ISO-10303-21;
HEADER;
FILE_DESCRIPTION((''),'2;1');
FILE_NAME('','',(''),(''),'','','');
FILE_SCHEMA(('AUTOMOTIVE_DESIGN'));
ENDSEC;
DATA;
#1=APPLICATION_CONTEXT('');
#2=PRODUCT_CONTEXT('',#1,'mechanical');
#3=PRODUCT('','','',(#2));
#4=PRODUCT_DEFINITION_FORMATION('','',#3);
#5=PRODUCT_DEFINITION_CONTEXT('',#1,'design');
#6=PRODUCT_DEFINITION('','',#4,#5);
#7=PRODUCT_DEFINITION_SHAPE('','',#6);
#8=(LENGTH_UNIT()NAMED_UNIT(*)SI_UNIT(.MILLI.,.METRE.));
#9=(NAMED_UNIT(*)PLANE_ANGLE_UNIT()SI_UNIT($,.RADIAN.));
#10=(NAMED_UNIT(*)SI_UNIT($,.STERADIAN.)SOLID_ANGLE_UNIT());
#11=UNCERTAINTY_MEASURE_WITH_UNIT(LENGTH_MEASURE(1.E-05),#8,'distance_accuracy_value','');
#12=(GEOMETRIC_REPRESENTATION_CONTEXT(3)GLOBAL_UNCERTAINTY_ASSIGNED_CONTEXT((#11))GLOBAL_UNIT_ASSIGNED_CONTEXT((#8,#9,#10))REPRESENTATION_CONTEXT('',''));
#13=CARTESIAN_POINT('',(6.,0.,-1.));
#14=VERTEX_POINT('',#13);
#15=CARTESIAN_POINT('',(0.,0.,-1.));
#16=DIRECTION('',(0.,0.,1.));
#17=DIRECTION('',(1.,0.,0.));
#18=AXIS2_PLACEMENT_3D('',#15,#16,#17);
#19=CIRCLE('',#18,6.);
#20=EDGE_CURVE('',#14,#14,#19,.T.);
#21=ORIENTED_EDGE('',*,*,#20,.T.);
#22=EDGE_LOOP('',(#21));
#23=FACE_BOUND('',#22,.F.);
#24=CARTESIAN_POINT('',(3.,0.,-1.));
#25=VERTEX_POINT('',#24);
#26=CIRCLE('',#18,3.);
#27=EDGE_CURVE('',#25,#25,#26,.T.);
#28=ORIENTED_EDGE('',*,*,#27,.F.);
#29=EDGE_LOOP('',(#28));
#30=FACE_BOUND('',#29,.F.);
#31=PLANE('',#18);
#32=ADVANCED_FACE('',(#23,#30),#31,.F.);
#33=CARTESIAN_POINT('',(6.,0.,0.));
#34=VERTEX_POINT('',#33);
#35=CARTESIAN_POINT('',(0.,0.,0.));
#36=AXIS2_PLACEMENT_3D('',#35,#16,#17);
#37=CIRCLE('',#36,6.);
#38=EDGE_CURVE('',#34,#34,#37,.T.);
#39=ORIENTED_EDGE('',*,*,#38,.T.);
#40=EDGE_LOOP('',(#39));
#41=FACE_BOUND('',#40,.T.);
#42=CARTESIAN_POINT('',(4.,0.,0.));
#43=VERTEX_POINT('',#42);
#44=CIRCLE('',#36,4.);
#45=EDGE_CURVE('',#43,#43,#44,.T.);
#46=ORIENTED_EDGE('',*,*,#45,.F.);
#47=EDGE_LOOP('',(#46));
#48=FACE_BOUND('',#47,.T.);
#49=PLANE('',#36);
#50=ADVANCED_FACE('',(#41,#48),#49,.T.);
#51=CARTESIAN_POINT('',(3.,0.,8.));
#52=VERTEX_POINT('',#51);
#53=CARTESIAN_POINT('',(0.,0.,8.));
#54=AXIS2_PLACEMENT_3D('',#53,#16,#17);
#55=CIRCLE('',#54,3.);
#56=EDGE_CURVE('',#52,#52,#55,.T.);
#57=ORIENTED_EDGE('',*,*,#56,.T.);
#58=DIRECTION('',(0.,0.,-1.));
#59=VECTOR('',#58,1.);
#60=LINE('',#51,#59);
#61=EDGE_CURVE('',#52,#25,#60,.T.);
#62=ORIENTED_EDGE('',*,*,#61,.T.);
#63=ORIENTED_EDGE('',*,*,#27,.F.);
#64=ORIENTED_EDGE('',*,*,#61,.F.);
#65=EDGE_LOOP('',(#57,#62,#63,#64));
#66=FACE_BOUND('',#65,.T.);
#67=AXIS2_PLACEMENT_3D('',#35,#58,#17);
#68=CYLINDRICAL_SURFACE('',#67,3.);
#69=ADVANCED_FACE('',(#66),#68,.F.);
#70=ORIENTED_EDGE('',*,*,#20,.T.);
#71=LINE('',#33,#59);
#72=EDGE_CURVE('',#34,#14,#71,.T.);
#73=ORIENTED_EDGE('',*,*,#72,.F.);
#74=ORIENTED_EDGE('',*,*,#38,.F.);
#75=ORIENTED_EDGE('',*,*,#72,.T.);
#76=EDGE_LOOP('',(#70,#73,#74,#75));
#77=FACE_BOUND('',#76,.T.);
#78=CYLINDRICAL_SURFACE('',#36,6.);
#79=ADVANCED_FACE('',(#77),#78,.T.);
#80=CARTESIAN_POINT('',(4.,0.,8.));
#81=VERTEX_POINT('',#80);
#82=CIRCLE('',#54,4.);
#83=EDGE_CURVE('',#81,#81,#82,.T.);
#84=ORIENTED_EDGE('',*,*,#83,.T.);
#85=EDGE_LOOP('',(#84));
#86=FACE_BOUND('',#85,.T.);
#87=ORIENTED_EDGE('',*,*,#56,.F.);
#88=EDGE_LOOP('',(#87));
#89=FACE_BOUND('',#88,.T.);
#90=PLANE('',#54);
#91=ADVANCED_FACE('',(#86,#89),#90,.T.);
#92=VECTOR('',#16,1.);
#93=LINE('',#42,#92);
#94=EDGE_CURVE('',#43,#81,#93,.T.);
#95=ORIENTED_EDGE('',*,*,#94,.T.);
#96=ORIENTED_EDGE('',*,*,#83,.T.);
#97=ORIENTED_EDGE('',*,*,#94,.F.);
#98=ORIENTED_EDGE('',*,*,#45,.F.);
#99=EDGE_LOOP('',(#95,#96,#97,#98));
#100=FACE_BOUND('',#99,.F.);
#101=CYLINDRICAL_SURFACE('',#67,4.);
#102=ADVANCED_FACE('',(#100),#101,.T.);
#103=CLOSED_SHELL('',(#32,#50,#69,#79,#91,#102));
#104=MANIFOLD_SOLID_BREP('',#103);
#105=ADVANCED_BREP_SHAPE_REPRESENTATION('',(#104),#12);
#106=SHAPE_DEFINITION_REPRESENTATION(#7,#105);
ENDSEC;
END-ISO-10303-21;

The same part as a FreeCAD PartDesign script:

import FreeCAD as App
import Part
import Sketcher

doc = App.newDocument("Part")
body = doc.addObject("PartDesign::Body", "Body")

# Sketch on XY plane
sketch1 = body.newObject("Sketcher::SketchObject", "Sketch")
sketch1.AttachmentSupport = (doc.getObject("XY_Plane"), [""])
sketch1.MapMode = "FlatFace"
sketch1.addGeometry(Part.Circle(App.Vector(0, 0, 0), App.Vector(0, 0, 1), 4), False)
sketch1.addGeometry(Part.Circle(App.Vector(0, 0, 0), App.Vector(0, 0, 1), 3), False)
sketch1.addConstraint(Sketcher.Constraint("Coincident", 0, 3, -1, 1))
sketch1.addConstraint(Sketcher.Constraint("Coincident", 1, 3, -1, 1))
sketch1.addConstraint(Sketcher.Constraint("Diameter", 0, 8.0))
sketch1.addConstraint(Sketcher.Constraint("Diameter", 1, 6.0))
pad1 = body.newObject("PartDesign::Pad", "Pad")
pad1.Profile = sketch1
pad1.Length = 8

# Sketch on XY plane
sketch2 = body.newObject("Sketcher::SketchObject", "Sketch001")
sketch2.AttachmentSupport = (doc.getObject("XY_Plane"), [""])
sketch2.MapMode = "FlatFace"
sketch2.addGeometry(Part.Circle(App.Vector(0, 0, 0), App.Vector(0, 0, 1), 6), False)
sketch2.addGeometry(Part.Circle(App.Vector(0, 0, 0), App.Vector(0, 0, 1), 3), False)
sketch2.addConstraint(Sketcher.Constraint("Coincident", 0, 3, -1, 1))
sketch2.addConstraint(Sketcher.Constraint("Coincident", 1, 3, -1, 1))
sketch2.addConstraint(Sketcher.Constraint("Diameter", 0, 12.0))
sketch2.addConstraint(Sketcher.Constraint("Diameter", 1, 6.0))
pad2 = body.newObject("PartDesign::Pad", "Pad001")
pad2.Profile = sketch2
pad2.Length = 1
pad2.Reversed = True

doc.recompute()
